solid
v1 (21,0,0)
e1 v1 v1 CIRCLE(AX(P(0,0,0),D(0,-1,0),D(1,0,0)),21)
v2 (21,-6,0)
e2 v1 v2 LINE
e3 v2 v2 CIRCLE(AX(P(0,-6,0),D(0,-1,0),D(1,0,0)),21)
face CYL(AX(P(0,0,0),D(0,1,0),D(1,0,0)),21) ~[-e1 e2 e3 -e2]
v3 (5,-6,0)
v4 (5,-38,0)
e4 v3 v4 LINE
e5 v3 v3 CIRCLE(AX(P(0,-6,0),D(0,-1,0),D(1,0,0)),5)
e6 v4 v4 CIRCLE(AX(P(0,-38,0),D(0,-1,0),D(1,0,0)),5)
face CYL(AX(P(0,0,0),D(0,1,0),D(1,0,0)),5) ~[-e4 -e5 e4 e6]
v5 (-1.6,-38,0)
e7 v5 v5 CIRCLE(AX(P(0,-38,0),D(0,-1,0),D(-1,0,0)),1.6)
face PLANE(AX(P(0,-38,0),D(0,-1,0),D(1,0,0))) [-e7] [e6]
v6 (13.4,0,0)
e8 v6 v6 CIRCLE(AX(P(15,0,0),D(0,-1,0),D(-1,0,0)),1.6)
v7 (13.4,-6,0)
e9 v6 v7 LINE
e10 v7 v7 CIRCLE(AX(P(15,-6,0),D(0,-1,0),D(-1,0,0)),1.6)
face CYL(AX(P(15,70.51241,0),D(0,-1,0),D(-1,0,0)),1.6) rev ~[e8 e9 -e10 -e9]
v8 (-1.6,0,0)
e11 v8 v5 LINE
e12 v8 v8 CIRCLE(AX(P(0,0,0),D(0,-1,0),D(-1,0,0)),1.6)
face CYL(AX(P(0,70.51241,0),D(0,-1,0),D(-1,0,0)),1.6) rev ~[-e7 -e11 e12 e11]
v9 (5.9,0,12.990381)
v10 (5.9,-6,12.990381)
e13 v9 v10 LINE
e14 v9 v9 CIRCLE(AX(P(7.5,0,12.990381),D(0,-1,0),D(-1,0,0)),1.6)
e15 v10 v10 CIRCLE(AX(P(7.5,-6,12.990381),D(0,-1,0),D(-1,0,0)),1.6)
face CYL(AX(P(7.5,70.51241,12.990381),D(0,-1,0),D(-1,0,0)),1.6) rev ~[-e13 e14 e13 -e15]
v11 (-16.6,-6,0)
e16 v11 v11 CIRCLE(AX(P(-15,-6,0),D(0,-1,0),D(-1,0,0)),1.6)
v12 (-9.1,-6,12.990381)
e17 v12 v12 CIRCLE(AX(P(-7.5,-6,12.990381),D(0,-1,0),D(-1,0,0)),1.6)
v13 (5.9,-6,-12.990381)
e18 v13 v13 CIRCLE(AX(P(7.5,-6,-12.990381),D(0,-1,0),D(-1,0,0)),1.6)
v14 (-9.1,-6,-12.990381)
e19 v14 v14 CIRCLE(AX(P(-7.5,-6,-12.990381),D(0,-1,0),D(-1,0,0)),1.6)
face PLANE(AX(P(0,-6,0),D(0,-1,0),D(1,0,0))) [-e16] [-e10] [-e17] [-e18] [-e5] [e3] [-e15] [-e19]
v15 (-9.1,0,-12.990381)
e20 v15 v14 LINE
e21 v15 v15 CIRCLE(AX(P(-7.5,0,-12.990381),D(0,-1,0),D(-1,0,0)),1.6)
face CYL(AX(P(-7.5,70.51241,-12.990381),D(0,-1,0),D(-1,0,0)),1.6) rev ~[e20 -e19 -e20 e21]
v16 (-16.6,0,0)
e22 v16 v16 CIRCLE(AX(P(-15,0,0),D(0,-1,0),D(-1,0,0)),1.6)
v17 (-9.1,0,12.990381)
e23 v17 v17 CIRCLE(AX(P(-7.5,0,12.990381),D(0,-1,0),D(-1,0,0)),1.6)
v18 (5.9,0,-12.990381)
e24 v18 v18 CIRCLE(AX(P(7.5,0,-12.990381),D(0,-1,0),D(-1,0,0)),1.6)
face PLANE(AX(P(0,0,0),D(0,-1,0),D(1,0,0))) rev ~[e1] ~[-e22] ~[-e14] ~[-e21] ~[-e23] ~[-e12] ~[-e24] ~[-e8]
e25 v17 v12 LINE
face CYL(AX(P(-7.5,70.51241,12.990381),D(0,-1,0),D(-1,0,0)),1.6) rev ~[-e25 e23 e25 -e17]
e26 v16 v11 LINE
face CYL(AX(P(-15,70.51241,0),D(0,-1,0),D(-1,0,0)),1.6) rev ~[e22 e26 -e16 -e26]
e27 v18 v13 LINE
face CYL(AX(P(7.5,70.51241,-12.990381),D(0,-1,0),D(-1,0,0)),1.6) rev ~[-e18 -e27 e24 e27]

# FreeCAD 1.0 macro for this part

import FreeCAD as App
import Part
import Sketcher
Q = App.Units.Quantity

doc = App.newDocument("Part")
body = doc.addObject("PartDesign::Body", "Body")

# Sketch on XZ plane
sketch1 = body.newObject("Sketcher::SketchObject", "Sketch")
sketch1.AttachmentSupport = (doc.getObject("XZ_Plane"), [""])
sketch1.MapMode = "FlatFace"
sketch1.addGeometry([
    Part.Circle(App.Vector(0, 0, 0), App.Vector(0, 0, 1), 21),
    Part.Circle(App.Vector(0, 0, 0), App.Vector(0, 0, 1), 5),
], False)
sketch1.addConstraint([
    Sketcher.Constraint("Coincident", 0, 3, -1, 1),
    Sketcher.Constraint("Coincident", 1, 3, -1, 1),
    Sketcher.Constraint("Diameter", 0, Q("42 mm")),
    Sketcher.Constraint("Diameter", 1, Q("10 mm")),
])
pad1 = body.newObject("PartDesign::Pad", "Pad")
pad1.Profile = sketch1
pad1.Length = 6

# Sketch on XZ plane
sketch2 = body.newObject("Sketcher::SketchObject", "Sketch001")
sketch2.AttachmentSupport = (doc.getObject("XZ_Plane"), [""])
sketch2.MapMode = "FlatFace"
sketch2.addGeometry(Part.Circle(App.Vector(0, 0, 0), App.Vector(0, 0, 1), 5), False)
sketch2.addConstraint([
    Sketcher.Constraint("Coincident", 0, 3, -1, 1),
    Sketcher.Constraint("Diameter", 0, Q("10 mm")),
])
pad2 = body.newObject("PartDesign::Pad", "Pad001")
pad2.Profile = sketch2
pad2.Length = 38

# Sketch on XZ plane
sketch3 = body.newObject("Sketcher::SketchObject", "Sketch002")
sketch3.AttachmentSupport = (doc.getObject("XZ_Plane"), [""])
sketch3.MapMode = "FlatFace"
sketch3.addGeometry([
    Part.Circle(App.Vector(-15, 0, 0), App.Vector(0, 0, 1), 1.6),  # 0
    Part.Circle(App.Vector(-7.5, 13, 0), App.Vector(0, 0, 1), 1.6),  # 1
    Part.Circle(App.Vector(7.5, 13, 0), App.Vector(0, 0, 1), 1.6),  # 2
    Part.Circle(App.Vector(15, 0, 0), App.Vector(0, 0, 1), 1.6),  # 3
    Part.Circle(App.Vector(7.5, -13, 0), App.Vector(0, 0, 1), 1.6),  # 4
    Part.Circle(App.Vector(-7.5, -13, 0), App.Vector(0, 0, 1), 1.6),  # 5
    Part.Circle(App.Vector(0, 0, 0), App.Vector(0, 0, 1), 1.6),  # 6
], False)
sketch3.addConstraint([
    Sketcher.Constraint("Coincident", 6, 3, -1, 1),
    Sketcher.Constraint("Equal", 0, 1),
    Sketcher.Constraint("Equal", 1, 2),
    Sketcher.Constraint("Equal", 2, 3),
    Sketcher.Constraint("Equal", 3, 4),
    Sketcher.Constraint("Equal", 4, 5),
    Sketcher.Constraint("Equal", 5, 6),
    Sketcher.Constraint("Symmetric", 0, 3, 3, 3, -1, 1),
    Sketcher.Constraint("Symmetric", 1, 3, 4, 3, -1, 1),
    Sketcher.Constraint("Symmetric", 2, 3, 5, 3, -1, 1),
    Sketcher.Constraint("Symmetric", 1, 3, 2, 3, -2),
    Sketcher.Constraint("PointOnObject", 0, 3, -1),
    Sketcher.Constraint("Diameter", 0, Q("3.2 mm")),
    Sketcher.Constraint("DistanceX", 0, 3, -1, 1, Q("15 mm")),
    Sketcher.Constraint("DistanceX", 1, 3, 2, 3, Q("15 mm")),
    Sketcher.Constraint("DistanceY", -1, 1, 1, 3, Q("12.990381 mm")),
])
doc.recompute()
hole = body.newObject("PartDesign::Hole", "Hole")
hole.Profile = sketch3
hole.ThreadType = "None"
hole.Diameter = 3.2
hole.DepthType = "ThroughAll"
hole.Reversed = True

doc.recompute()
